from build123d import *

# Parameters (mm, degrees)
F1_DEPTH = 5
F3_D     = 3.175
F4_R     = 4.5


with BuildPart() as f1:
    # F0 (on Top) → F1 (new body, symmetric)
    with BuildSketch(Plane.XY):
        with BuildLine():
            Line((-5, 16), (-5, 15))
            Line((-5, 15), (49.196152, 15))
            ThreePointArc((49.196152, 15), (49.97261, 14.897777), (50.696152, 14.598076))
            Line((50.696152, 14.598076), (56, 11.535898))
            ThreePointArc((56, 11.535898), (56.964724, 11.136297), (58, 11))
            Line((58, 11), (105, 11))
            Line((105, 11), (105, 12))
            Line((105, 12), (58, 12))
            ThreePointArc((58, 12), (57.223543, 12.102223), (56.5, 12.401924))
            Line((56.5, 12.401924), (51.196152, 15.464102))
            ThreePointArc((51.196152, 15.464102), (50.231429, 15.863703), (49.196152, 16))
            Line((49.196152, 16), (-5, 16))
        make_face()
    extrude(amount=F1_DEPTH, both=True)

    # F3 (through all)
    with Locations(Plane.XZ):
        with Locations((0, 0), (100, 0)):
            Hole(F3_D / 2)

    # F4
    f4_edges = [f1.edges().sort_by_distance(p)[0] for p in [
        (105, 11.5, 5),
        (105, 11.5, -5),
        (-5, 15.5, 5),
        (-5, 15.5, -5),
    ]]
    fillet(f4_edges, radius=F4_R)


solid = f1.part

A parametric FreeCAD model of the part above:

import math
import FreeCAD as App
import Part
import Sketcher
Q = App.Units.Quantity


def edges_at(feature, points):
    """Names of the edges that pass closest to the given points."""
    edges = feature.Shape.Edges
    near = lambda p: min(range(len(edges)), key=lambda i: edges[i].distToShape(Part.Vertex(*p))[0])
    return sorted({f"Edge{near(p) + 1}" for p in points})

doc = App.newDocument("Part")
body = doc.addObject("PartDesign::Body", "Body")

# Sketch on XY plane
sketch1 = body.newObject("Sketcher::SketchObject", "Sketch")
sketch1.AttachmentSupport = (doc.getObject("XY_Plane"), [""])
sketch1.MapMode = "FlatFace"
sketch1.addGeometry([
    Part.LineSegment(App.Vector(-5, 16, 0), App.Vector(-5, 15, 0)),  # 0
    Part.LineSegment(App.Vector(-5, 15, 0), App.Vector(49.2, 15, 0)),  # 1
    Part.ArcOfCircle(Part.Circle(App.Vector(49.2, 12, 0), App.Vector(0, 0, 1), 3), math.radians(60), math.radians(90)),  # 2
    Part.LineSegment(App.Vector(50.7, 14.6, 0), App.Vector(56, 11.5, 0)),  # 3
    Part.ArcOfCircle(Part.Circle(App.Vector(58, 15, 0), App.Vector(0, 0, 1), 4), math.radians(-120), math.radians(-90)),  # 4
    Part.LineSegment(App.Vector(58, 11, 0), App.Vector(105, 11, 0)),  # 5
    Part.LineSegment(App.Vector(105, 11, 0), App.Vector(105, 12, 0)),  # 6
    Part.LineSegment(App.Vector(105, 12, 0), App.Vector(58, 12, 0)),  # 7
    Part.ArcOfCircle(Part.Circle(App.Vector(58, 15, 0), App.Vector(0, 0, 1), 3), math.radians(-120), math.radians(-90)),  # 8
    Part.LineSegment(App.Vector(56.5, 12.4, 0), App.Vector(51.2, 15.5, 0)),  # 9
    Part.ArcOfCircle(Part.Circle(App.Vector(49.2, 12, 0), App.Vector(0, 0, 1), 4), math.radians(60), math.radians(90)),  # 10
    Part.LineSegment(App.Vector(49.2, 16, 0), App.Vector(-5, 16, 0)),  # 11
], False)
sketch1.addConstraint([
    Sketcher.Constraint("Coincident", 0, 2, 1, 1),
    Sketcher.Constraint("Tangent", 1, 2, 2, 2),
    Sketcher.Constraint("Tangent", 2, 1, 3, 1),
    Sketcher.Constraint("Tangent", 3, 2, 4, 1),
    Sketcher.Constraint("Tangent", 4, 2, 5, 1),
    Sketcher.Constraint("Coincident", 5, 2, 6, 1),
    Sketcher.Constraint("Coincident", 6, 2, 7, 1),
    Sketcher.Constraint("Tangent", 7, 2, 8, 2),
    Sketcher.Constraint("Tangent", 8, 1, 9, 1),
    Sketcher.Constraint("Tangent", 9, 2, 10, 1),
    Sketcher.Constraint("Tangent", 10, 2, 11, 1),
    Sketcher.Constraint("Coincident", 11, 2, 0, 1),
    Sketcher.Constraint("Vertical", 0),
    Sketcher.Constraint("Horizontal", 1),
    Sketcher.Constraint("Horizontal", 5),
    Sketcher.Constraint("Vertical", 6),
    Sketcher.Constraint("Horizontal", 7),
    Sketcher.Constraint("Horizontal", 11),
    Sketcher.Constraint("Coincident", 8, 3, 4, 3),
    Sketcher.Constraint("Coincident", 10, 3, 2, 3),
    Sketcher.Constraint("Parallel", 3, 9),
    Sketcher.Constraint("DistanceX", 5, 1, 5, 2, Q("47 mm")),
    Sketcher.Constraint("DistanceY", 0, 2, 0, 1, Q("1 mm")),
    Sketcher.Constraint("Angle", 3, Q("-29.999999 deg")),
    Sketcher.Constraint("DistanceX", 0, 2, -1, 1, Q("5 mm")),
    Sketcher.Constraint("DistanceY", -1, 1, 0, 2, Q("15 mm")),
    Sketcher.Constraint("DistanceX", -1, 1, 3, 2, Q("56 mm")),
    Sketcher.Constraint("DistanceX", -1, 1, 4, 2, Q("58 mm")),
    Sketcher.Constraint("DistanceY", -1, 1, 4, 2, Q("11 mm")),
    Sketcher.Constraint("DistanceX", 1, 2, 9, 2, Q("2 mm")),
])
pad1 = body.newObject("PartDesign::Pad", "Pad")
pad1.Profile = sketch1
pad1.Length = 10
pad1.Midplane = True

# Sketch on XZ plane
sketch2 = body.newObject("Sketcher::SketchObject", "Sketch001")
sketch2.AttachmentSupport = (doc.getObject("XZ_Plane"), [""])
sketch2.MapMode = "FlatFace"
sketch2.addGeometry([
    Part.Circle(App.Vector(0, 0, 0), App.Vector(0, 0, 1), 1.6),
    Part.Circle(App.Vector(100, 0, 0), App.Vector(0, 0, 1), 1.6),
], False)
sketch2.addConstraint([
    Sketcher.Constraint("Coincident", 0, 3, -1, 1),
    Sketcher.Constraint("Equal", 0, 1),
    Sketcher.Constraint("PointOnObject", 1, 3, -1),
    Sketcher.Constraint("Diameter", 0, Q("3.175 mm")),
    Sketcher.Constraint("DistanceX", -1, 1, 1, 3, Q("100 mm")),
])
doc.recompute()
hole = body.newObject("PartDesign::Hole", "Hole")
hole.Profile = sketch2
hole.ThreadType = "None"
hole.Diameter = 3.175
hole.DepthType = "ThroughAll"
doc.recompute()

fillet = body.newObject("PartDesign::Fillet", "Fillet")
fillet.Base = (hole, edges_at(hole, [
    (105, 11.5, 5),
    (105, 11.5, -5),
    (-5, 15.5, 5),
    (-5, 15.5, -5),
]))
fillet.Radius = 4.5

doc.recompute()
